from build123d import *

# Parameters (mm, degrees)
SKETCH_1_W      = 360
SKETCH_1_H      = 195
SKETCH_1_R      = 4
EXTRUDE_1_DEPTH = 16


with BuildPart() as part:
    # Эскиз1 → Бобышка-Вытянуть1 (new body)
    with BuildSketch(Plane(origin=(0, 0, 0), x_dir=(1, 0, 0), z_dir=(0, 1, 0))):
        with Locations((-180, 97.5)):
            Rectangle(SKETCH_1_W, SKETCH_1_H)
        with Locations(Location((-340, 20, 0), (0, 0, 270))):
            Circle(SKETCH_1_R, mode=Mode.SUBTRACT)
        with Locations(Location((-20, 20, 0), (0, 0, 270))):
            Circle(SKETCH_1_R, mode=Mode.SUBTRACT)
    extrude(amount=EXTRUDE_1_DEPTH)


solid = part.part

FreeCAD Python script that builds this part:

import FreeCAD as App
import Part
import Sketcher

V = App.Vector

doc = App.newDocument("Part")
params = doc.addObject("Spreadsheet::Sheet", "Params")
for row, (alias, value) in enumerate([
    ("sketch1_diameter", "8 mm"),
    ("sketch1_width", "360 mm"),
    ("sketch1_height", "195 mm"),
    ("pad1_length", "16 mm"),
], start=1):
    params.set(f"A{row}", alias)
    params.set(f"B{row}", "=" + value)
    params.setAlias(f"B{row}", alias)

body = doc.addObject("PartDesign::Body", "Body")

# Sketch on XZ plane
sketch1 = body.newObject("Sketcher::SketchObject", "Sketch")
sketch1.AttachmentSupport = (doc.getObject("XZ_Plane"), [""])
sketch1.MapMode = "FlatFace"
sketch1.addGeometry([
    Part.LineSegment(V(-360, -195, 0), V(-360, 0, 0)),  # 0
    Part.LineSegment(V(-360, 0, 0), V(0, 0, 0)),  # 1
    Part.LineSegment(V(0, 0, 0), V(0, -195, 0)),  # 2
    Part.LineSegment(V(0, -195, 0), V(-360, -195, 0)),  # 3
    Part.Circle(V(-340, -20, 0), V(0, 0, 1), 4),  # 4
    Part.Circle(V(-20, -20, 0), V(0, 0, 1), 4),  # 5
], False)
sketch1.addConstraint([
    Sketcher.Constraint("Coincident", 0, 2, 1, 1),
    Sketcher.Constraint("Coincident", 1, 2, 2, 1),
    Sketcher.Constraint("Coincident", 2, 2, 3, 1),
    Sketcher.Constraint("Coincident", 3, 2, 0, 1),
    Sketcher.Constraint("Vertical", 0),
    Sketcher.Constraint("Horizontal", 1),
    Sketcher.Constraint("Vertical", 2),
    Sketcher.Constraint("Horizontal", 3),
    Sketcher.Constraint("Coincident", 1, 2, -1, 1),
    Sketcher.Constraint("Equal", 4, 5),
    Sketcher.Constraint("Horizontal", 4, 3, 5, 3),
    Sketcher.Constraint("Diameter", 4, 8.0),
    Sketcher.Constraint("DistanceX", 1, 1, 1, 2, 360.0),
    Sketcher.Constraint("DistanceY", 0, 1, 0, 2, 195.0),
    Sketcher.Constraint("DistanceX", 4, 3, -1, 1, 340.0),
    Sketcher.Constraint("DistanceY", 4, 3, -1, 1, 20.0),
    Sketcher.Constraint("DistanceX", 5, 3, -1, 1, 20.0),
])
sketch1.setExpression("Constraints[11]", "Params.sketch1_diameter")
sketch1.setExpression("Constraints[12]", "Params.sketch1_width")
sketch1.setExpression("Constraints[13]", "Params.sketch1_height")
pad1 = body.newObject("PartDesign::Pad", "Pad")
pad1.Profile = sketch1
pad1.setExpression("Length", "Params.pad1_length")
pad1.Reversed = True

doc.recompute()
